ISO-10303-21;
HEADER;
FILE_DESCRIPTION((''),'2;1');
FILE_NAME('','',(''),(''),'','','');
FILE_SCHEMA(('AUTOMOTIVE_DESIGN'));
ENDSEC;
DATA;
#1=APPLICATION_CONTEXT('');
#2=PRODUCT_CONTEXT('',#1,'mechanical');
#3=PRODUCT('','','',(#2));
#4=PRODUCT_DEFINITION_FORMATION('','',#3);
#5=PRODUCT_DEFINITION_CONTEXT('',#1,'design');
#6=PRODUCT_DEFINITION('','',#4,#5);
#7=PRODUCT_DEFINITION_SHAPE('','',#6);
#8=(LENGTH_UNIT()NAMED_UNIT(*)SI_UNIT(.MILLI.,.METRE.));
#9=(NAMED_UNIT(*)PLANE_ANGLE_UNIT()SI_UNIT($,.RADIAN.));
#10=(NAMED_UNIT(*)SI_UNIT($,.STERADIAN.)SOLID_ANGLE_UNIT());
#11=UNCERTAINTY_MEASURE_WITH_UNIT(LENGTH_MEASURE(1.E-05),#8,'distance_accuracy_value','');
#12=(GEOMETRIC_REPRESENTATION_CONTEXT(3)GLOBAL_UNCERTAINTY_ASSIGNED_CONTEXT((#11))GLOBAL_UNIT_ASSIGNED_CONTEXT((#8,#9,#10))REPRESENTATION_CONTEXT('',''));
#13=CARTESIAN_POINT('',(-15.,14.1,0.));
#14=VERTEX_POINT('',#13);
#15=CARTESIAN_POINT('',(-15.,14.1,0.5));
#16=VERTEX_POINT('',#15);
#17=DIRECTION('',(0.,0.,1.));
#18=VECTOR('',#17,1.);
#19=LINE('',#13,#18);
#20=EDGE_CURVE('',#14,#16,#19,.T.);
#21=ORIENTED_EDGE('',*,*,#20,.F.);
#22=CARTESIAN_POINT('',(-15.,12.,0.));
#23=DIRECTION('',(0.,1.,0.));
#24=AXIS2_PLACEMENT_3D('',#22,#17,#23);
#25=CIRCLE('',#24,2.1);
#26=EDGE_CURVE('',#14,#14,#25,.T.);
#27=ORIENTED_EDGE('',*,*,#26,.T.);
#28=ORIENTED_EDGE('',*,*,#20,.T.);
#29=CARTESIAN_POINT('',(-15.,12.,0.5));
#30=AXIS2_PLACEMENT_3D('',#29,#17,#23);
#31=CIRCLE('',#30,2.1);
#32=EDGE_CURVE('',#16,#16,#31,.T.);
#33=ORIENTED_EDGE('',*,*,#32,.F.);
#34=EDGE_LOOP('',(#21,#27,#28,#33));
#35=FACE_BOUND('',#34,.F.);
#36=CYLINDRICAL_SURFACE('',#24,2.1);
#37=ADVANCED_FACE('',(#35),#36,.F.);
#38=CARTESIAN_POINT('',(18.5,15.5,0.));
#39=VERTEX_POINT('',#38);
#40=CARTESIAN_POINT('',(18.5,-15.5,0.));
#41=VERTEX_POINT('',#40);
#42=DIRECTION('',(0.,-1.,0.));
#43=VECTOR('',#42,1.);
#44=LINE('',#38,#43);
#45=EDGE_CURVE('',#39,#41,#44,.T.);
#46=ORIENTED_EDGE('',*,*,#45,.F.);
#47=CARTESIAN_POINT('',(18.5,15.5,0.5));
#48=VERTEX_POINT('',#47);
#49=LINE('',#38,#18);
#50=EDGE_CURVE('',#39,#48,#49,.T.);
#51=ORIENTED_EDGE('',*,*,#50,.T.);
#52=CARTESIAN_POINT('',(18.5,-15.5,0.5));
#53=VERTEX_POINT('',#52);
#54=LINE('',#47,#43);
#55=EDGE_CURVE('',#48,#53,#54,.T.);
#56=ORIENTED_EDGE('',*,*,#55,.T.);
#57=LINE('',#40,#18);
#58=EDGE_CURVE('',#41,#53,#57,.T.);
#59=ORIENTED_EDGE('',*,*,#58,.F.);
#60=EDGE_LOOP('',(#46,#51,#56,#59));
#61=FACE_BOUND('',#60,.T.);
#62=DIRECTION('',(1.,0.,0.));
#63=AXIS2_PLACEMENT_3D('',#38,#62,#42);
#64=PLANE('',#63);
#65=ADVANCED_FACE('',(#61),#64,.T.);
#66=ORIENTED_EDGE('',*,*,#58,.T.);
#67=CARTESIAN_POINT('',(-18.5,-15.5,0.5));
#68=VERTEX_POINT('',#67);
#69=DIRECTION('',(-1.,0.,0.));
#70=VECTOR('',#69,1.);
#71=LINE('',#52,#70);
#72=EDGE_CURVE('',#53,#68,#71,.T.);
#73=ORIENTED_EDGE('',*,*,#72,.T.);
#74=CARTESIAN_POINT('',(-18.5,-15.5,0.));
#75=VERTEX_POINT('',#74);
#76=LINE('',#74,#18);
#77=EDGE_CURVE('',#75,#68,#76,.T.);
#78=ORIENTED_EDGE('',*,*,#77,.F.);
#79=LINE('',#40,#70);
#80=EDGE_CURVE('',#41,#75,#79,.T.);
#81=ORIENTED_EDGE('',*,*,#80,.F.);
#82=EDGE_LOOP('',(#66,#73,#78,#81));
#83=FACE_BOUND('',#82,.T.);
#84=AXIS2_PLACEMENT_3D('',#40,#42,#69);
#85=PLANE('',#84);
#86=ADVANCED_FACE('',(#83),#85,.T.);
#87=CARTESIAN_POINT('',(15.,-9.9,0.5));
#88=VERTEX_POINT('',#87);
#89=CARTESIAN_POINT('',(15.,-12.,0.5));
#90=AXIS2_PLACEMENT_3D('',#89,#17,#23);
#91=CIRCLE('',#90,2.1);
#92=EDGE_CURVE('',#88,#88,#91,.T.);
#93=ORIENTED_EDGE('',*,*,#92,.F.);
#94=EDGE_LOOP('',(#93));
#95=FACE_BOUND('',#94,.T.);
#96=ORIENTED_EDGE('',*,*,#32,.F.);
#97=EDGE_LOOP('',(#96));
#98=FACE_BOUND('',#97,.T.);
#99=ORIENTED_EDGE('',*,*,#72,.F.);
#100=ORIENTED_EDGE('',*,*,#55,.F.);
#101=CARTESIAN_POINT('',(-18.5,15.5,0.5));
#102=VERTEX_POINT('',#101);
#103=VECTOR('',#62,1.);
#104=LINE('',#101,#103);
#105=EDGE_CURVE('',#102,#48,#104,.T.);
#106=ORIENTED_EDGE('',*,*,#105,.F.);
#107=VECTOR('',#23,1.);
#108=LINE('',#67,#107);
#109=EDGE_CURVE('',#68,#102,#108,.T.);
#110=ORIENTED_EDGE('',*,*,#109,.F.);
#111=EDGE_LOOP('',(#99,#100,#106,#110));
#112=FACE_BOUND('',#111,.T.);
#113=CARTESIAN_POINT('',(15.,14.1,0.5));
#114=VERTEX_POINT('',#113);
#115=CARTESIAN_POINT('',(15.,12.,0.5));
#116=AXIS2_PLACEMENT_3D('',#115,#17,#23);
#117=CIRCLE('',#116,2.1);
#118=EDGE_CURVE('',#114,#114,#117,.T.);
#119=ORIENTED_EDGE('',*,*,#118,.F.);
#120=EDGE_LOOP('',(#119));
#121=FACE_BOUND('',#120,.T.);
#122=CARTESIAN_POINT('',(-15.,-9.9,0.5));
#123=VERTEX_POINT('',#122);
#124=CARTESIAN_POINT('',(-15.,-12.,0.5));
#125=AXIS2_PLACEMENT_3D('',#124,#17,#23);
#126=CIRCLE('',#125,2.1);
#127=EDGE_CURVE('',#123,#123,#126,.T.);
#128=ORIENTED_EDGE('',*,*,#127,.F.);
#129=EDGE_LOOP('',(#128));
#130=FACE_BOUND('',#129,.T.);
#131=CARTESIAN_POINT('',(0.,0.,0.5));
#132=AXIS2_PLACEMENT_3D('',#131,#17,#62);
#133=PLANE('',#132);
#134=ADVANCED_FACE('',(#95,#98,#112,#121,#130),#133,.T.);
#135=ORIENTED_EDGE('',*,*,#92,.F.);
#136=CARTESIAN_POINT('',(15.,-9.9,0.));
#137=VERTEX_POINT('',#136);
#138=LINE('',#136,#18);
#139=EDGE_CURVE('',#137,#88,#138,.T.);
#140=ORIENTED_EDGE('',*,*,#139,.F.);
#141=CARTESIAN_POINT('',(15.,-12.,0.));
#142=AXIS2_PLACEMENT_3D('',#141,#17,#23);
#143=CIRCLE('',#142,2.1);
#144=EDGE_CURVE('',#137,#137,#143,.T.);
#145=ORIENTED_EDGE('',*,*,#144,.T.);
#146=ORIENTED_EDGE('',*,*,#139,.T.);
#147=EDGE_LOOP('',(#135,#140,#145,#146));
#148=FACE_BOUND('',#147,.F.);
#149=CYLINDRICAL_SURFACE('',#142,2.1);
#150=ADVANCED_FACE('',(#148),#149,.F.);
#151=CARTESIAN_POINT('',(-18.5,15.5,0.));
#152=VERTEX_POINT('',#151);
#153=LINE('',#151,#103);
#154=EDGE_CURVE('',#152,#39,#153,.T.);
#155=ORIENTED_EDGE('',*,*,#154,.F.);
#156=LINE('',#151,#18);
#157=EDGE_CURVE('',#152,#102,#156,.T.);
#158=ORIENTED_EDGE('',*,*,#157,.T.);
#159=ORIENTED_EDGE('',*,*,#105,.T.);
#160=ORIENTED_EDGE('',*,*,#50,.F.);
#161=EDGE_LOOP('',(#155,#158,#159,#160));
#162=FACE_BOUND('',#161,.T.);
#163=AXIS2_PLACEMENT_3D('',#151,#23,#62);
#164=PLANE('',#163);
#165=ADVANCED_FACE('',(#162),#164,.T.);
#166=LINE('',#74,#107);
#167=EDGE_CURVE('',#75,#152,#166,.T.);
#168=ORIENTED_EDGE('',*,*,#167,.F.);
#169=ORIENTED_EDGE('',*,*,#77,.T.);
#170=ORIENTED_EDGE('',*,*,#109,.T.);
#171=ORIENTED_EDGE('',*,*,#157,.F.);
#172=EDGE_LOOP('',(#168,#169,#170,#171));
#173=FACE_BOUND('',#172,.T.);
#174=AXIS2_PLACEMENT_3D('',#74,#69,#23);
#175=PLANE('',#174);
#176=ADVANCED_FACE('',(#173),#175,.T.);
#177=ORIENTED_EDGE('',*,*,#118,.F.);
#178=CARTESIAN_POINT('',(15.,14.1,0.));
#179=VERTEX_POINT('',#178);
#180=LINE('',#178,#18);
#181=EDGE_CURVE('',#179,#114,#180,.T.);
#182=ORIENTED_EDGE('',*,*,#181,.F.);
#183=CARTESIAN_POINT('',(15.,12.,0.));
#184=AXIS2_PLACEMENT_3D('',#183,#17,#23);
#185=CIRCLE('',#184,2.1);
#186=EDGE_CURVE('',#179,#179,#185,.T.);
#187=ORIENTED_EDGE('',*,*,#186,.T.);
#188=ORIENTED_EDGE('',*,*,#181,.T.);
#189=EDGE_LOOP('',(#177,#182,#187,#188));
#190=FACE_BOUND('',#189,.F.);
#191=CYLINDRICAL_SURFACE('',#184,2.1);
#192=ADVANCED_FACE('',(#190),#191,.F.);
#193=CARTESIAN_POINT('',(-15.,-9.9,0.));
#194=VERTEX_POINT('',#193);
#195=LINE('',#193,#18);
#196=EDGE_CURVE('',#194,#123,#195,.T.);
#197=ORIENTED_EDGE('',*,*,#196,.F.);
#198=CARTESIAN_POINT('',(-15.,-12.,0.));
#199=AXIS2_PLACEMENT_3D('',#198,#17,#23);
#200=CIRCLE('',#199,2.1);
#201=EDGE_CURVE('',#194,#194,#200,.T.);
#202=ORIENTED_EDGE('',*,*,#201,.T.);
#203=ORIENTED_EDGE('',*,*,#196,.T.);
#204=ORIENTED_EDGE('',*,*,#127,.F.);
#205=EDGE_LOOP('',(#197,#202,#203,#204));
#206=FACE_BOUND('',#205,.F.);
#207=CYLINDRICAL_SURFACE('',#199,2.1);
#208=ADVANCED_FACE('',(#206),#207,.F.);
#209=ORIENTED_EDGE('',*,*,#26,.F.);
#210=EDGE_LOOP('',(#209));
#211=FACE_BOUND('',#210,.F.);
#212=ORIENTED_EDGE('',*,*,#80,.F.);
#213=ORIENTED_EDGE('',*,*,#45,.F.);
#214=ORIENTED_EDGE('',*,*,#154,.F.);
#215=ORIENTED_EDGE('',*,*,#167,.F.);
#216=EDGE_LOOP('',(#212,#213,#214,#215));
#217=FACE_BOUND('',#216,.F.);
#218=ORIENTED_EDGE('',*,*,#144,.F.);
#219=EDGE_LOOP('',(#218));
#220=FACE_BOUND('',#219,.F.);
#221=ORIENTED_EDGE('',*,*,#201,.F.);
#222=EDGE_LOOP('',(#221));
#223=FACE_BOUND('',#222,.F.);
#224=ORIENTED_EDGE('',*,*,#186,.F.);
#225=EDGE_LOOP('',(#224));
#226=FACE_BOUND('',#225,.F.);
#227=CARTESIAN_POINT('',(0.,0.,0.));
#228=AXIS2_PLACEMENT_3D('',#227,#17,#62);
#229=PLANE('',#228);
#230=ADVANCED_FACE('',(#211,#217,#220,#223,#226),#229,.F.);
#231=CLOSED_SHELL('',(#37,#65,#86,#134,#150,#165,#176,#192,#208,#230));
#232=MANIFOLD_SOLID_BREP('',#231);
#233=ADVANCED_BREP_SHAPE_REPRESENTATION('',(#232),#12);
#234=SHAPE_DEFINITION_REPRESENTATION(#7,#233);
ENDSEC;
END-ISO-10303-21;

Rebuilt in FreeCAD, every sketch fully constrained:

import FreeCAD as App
import Part
import Sketcher

V = App.Vector


def add_polygon(sketch, points):
    """Adds a closed chain of lines whose ends are joined by coincident constraints."""
    first, n = sketch.GeometryCount, len(points)
    for a, b in zip(points, points[1:] + points[:1]):
        sketch.addGeometry(Part.LineSegment(App.Vector(*a, 0), App.Vector(*b, 0)), False)
    for i in range(n):
        sketch.addConstraint(Sketcher.Constraint("Coincident", first + i, 2, first + (i + 1) % n, 1))

doc = App.newDocument("Part")
body = doc.addObject("PartDesign::Body", "Body")

# Sketch on XY plane
sketch1 = body.newObject("Sketcher::SketchObject", "Sketch")
sketch1.AttachmentSupport = (doc.getObject("XY_Plane"), [""])
sketch1.MapMode = "FlatFace"
add_polygon(sketch1, [(-18.5, -15.5), (18.5, -15.5), (18.5, 15.5), (-18.5, 15.5)])  # lines 0-3
sketch1.addConstraint([
    Sketcher.Constraint("Horizontal", 0),
    Sketcher.Constraint("Vertical", 1),
    Sketcher.Constraint("Horizontal", 2),
    Sketcher.Constraint("Vertical", 3),
    Sketcher.Constraint("Symmetric", 0, 2, 2, 2, -1, 1),
    Sketcher.Constraint("DistanceX", 0, 1, 0, 2, 37.0),
    Sketcher.Constraint("DistanceY", 1, 1, 1, 2, 31.0),
])
pad1 = body.newObject("PartDesign::Pad", "Pad")
pad1.Profile = sketch1
pad1.Length = 0.5

# Sketch on XY plane
sketch2 = body.newObject("Sketcher::SketchObject", "Sketch001")
sketch2.AttachmentSupport = (doc.getObject("XY_Plane"), [""])
sketch2.MapMode = "FlatFace"
sketch2.addGeometry([
    Part.Circle(V(-15, 12, 0), V(0, 0, 1), 2.1),
    Part.Circle(V(-15, -12, 0), V(0, 0, 1), 2.1),
    Part.Circle(V(15, 12, 0), V(0, 0, 1), 2.1),
    Part.Circle(V(15, -12, 0), V(0, 0, 1), 2.1),
], False)
sketch2.addConstraint([
    Sketcher.Constraint("Equal", 0, 1),
    Sketcher.Constraint("Equal", 1, 2),
    Sketcher.Constraint("Equal", 2, 3),
    Sketcher.Constraint("Symmetric", 1, 3, 2, 3, -1, 1),
    Sketcher.Constraint("Symmetric", 0, 3, 3, 3, -1, 1),
    Sketcher.Constraint("Symmetric", 0, 3, 2, 3, -2),
    Sketcher.Constraint("Diameter", 0, 4.2),
    Sketcher.Constraint("DistanceX", 0, 3, -1, 1, 15.0),
    Sketcher.Constraint("DistanceY", -1, 1, 0, 3, 12.0),
])
doc.recompute()
hole = body.newObject("PartDesign::Hole", "Hole")
hole.Profile = sketch2
hole.ThreadType = "None"
hole.Diameter = 4.2
hole.DepthType = "ThroughAll"
hole.Reversed = True

doc.recompute()
